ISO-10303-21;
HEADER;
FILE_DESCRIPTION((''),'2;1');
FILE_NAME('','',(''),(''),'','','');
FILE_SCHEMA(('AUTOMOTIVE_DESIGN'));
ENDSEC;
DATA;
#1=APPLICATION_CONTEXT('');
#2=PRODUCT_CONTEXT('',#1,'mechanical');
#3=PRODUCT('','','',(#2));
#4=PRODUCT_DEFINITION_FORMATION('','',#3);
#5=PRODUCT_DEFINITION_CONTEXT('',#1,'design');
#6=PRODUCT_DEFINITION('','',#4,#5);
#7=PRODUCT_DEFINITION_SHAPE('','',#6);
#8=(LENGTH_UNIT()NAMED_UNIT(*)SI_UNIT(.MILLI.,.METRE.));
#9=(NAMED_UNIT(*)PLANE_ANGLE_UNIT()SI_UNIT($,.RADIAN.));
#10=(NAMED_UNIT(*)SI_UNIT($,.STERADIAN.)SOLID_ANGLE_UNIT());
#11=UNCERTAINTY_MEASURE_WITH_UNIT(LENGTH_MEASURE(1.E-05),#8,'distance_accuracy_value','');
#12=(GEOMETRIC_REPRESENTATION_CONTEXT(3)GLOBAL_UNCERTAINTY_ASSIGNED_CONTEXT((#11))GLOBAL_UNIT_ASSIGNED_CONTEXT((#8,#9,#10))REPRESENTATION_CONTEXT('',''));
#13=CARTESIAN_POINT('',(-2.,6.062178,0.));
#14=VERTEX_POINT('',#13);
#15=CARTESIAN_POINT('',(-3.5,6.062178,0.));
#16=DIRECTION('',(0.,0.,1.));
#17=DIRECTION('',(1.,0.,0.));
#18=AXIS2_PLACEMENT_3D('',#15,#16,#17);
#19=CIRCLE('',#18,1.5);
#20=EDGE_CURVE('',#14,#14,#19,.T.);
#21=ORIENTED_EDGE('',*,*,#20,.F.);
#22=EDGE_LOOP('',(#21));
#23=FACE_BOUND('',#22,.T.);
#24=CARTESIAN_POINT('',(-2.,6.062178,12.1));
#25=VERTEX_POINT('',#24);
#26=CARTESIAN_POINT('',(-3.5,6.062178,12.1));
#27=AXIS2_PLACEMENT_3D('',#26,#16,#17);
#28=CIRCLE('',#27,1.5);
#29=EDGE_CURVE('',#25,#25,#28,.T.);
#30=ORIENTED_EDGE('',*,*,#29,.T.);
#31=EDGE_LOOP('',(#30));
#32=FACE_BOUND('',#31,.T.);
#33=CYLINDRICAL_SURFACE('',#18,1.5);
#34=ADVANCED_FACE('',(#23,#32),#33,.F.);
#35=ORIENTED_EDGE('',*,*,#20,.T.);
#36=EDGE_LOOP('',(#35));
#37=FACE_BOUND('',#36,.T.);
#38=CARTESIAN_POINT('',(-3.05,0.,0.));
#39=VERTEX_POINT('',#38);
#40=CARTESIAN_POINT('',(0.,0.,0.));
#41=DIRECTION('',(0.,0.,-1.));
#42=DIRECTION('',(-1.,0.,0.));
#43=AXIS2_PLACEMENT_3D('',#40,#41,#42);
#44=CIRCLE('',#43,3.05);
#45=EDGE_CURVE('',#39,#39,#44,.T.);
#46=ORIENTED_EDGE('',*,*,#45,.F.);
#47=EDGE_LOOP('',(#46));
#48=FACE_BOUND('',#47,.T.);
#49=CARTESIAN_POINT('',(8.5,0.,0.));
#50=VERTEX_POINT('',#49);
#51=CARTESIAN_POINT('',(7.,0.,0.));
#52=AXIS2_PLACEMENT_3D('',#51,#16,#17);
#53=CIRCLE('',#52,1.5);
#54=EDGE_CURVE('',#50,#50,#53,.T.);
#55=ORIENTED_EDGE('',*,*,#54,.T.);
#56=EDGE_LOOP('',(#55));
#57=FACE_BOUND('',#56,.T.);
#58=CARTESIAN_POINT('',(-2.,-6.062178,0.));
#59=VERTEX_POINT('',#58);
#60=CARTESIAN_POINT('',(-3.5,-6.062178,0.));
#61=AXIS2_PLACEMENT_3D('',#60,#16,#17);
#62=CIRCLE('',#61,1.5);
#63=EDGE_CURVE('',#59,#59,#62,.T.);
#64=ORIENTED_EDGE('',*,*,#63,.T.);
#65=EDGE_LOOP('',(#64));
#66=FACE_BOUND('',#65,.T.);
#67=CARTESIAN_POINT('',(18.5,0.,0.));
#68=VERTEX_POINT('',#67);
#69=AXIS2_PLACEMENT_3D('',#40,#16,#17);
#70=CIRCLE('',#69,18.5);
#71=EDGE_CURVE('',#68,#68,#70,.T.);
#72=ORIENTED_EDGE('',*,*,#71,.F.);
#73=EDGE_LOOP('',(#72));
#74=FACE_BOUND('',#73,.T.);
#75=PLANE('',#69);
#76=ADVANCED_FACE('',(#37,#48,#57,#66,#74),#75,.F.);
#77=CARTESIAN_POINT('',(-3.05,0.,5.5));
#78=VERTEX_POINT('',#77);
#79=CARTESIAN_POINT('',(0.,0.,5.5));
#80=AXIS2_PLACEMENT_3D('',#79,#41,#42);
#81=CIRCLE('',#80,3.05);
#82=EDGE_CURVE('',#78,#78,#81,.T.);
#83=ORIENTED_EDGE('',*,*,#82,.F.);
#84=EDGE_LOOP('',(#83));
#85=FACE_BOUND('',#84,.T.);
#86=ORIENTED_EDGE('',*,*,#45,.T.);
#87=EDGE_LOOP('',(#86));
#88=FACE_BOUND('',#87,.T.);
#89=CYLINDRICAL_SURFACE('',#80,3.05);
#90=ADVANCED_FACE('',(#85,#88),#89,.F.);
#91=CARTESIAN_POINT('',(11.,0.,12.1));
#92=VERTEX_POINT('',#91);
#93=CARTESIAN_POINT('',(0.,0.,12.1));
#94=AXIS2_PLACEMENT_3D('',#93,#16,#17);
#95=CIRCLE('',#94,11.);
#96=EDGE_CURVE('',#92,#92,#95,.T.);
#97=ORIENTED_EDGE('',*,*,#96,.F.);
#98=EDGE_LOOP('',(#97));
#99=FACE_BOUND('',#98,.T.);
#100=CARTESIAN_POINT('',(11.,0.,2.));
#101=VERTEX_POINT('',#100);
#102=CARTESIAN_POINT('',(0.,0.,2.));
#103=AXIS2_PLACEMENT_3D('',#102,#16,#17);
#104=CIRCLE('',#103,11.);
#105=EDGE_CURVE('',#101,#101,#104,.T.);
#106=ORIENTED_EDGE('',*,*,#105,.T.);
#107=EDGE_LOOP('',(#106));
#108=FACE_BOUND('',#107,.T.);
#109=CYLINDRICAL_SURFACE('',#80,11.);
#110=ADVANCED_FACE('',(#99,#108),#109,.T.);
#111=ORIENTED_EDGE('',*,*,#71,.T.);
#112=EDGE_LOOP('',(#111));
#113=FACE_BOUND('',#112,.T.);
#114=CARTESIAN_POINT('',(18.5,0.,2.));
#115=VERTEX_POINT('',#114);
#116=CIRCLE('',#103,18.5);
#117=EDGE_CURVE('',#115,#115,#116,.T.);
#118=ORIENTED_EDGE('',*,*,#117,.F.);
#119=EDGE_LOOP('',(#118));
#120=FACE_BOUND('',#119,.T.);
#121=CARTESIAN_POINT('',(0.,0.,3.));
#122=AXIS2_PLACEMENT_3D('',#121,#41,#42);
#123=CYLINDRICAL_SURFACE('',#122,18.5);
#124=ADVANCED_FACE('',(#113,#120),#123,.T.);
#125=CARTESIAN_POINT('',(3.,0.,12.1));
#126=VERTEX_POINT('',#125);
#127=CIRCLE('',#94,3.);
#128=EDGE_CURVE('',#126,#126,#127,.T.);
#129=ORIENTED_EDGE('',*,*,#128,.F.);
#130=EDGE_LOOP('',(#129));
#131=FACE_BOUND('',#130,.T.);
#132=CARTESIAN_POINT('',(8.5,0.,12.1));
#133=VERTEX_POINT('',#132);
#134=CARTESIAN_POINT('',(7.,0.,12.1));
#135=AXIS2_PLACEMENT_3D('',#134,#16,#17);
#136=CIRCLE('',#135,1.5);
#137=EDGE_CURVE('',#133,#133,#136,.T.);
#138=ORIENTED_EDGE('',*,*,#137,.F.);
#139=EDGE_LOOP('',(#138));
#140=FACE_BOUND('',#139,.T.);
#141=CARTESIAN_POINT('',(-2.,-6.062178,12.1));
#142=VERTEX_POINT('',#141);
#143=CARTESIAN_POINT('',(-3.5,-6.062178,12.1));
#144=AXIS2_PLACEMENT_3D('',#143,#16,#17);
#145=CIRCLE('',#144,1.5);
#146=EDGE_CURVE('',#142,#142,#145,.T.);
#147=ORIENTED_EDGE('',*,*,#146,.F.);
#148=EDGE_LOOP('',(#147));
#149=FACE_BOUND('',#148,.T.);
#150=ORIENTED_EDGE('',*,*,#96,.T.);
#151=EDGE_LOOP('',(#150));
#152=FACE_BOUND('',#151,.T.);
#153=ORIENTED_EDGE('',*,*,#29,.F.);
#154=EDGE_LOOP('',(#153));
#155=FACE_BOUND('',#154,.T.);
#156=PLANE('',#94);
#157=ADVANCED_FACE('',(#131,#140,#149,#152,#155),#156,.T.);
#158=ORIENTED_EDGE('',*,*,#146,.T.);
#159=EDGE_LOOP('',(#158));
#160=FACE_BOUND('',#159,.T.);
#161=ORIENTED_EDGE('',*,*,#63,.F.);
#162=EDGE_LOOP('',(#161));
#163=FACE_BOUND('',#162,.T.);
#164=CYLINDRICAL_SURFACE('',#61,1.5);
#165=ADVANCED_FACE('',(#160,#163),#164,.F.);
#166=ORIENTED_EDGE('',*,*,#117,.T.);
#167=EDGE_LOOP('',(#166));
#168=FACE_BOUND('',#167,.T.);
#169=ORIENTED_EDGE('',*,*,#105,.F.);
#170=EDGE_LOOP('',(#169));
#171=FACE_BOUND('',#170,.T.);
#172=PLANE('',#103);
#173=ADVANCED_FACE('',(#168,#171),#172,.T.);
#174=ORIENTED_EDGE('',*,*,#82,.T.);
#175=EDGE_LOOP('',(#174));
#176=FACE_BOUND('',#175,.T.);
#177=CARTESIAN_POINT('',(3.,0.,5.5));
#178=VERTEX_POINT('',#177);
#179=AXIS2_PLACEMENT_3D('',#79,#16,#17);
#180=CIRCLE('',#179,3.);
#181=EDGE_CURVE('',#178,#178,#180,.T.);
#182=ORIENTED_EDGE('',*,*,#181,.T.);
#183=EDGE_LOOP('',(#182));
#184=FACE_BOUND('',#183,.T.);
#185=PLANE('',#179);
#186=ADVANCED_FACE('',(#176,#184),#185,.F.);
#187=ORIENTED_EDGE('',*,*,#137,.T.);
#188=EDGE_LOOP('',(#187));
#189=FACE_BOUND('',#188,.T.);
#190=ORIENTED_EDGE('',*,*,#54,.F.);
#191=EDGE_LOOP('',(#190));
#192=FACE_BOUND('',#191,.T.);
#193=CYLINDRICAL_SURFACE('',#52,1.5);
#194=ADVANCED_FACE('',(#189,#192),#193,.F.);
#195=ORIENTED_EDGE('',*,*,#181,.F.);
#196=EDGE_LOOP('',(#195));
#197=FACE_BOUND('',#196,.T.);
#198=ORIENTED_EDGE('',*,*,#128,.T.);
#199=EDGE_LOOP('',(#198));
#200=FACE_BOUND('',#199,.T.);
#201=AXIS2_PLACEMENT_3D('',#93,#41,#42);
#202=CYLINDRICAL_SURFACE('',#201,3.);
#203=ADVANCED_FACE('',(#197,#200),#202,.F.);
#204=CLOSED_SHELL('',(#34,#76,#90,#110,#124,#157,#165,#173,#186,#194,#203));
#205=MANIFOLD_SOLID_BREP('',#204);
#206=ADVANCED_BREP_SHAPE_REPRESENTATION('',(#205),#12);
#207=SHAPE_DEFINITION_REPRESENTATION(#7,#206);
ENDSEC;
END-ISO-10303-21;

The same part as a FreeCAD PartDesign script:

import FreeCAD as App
import Part
import Sketcher

doc = App.newDocument("Part")
params = doc.addObject("Spreadsheet::Sheet", "Params")
for row, (alias, value) in enumerate([
    ("sketch1_diameter", "37 mm"),
    ("pad1_length", "3 mm"),
    ("sketch2_diameter", "22 mm"),
    ("pad2_length", "2.5 mm"),
    ("sketch3_diameter", "6.1 mm"),
    ("sketch4_diameter", "22 mm"),
    ("sketch4_diameter2", "6 mm"),
    ("pad3_length", "6.6 mm"),
    ("sketch5_diameter", "3 mm"),
    ("sketch6_diameter", "37 mm"),
    ("sketch6_diameter2", "22 mm"),
    ("pocket3_length", "1 mm"),
], start=1):
    params.set(f"A{row}", alias)
    params.set(f"B{row}", "=" + value)
    params.setAlias(f"B{row}", alias)

body = doc.addObject("PartDesign::Body", "Body")

sketch1 = body.newObject("Sketcher::SketchObject", "Sketch")
sketch1.AttachmentSupport = (doc.getObject("XY_Plane"), [""])
sketch1.MapMode = "FlatFace"
sketch1.addGeometry(Part.Circle(App.Vector(0, 0, 0), App.Vector(0, 0, 1), 18), False)
sketch1.addConstraint(Sketcher.Constraint("Coincident", 0, 3, -1, 1))
sketch1.addConstraint(Sketcher.Constraint("Diameter", 0, 37.0))
sketch1.setExpression("Constraints[1]", "Params.sketch1_diameter")
pad1 = body.newObject("PartDesign::Pad", "Pad")
pad1.Profile = sketch1
pad1.setExpression("Length", "Params.pad1_length")

sketch2 = body.newObject("Sketcher::SketchObject", "Sketch001")
sketch2.AttachmentSupport = (doc.getObject("XY_Plane"), [""])
sketch2.MapMode = "FlatFace"
sketch2.AttachmentOffset = App.Placement(App.Vector(0, 0, 3), App.Rotation())
sketch2.addGeometry(Part.Circle(App.Vector(0, 0, 0), App.Vector(0, 0, 1), 11), False)
sketch2.addConstraint(Sketcher.Constraint("Coincident", 0, 3, -1, 1))
sketch2.addConstraint(Sketcher.Constraint("Diameter", 0, 22.0))
sketch2.setExpression("Constraints[1]", "Params.sketch2_diameter")
pad2 = body.newObject("PartDesign::Pad", "Pad001")
pad2.Profile = sketch2
pad2.setExpression("Length", "Params.pad2_length")

sketch3 = body.newObject("Sketcher::SketchObject", "Sketch002")
sketch3.AttachmentSupport = (doc.getObject("XY_Plane"), [""])
sketch3.MapMode = "FlatFace"
sketch3.addGeometry(Part.Circle(App.Vector(0, 0, 0), App.Vector(0, 0, 1), 3), False)
sketch3.addConstraint(Sketcher.Constraint("Coincident", 0, 3, -1, 1))
sketch3.addConstraint(Sketcher.Constraint("Diameter", 0, 6.1))
sketch3.setExpression("Constraints[1]", "Params.sketch3_diameter")
pocket1 = body.newObject("PartDesign::Pocket", "Pocket")
pocket1.Profile = sketch3
pocket1.Type = "ThroughAll"
pocket1.Reversed = True

sketch4 = body.newObject("Sketcher::SketchObject", "Sketch003")
sketch4.AttachmentSupport = (doc.getObject("XY_Plane"), [""])
sketch4.MapMode = "FlatFace"
sketch4.AttachmentOffset = App.Placement(App.Vector(0, 0, 5.5), App.Rotation())
sketch4.addGeometry(Part.Circle(App.Vector(0, 0, 0), App.Vector(0, 0, 1), 11), False)
sketch4.addGeometry(Part.Circle(App.Vector(0, 0, 0), App.Vector(0, 0, 1), 3), False)
sketch4.addConstraint(Sketcher.Constraint("Coincident", 0, 3, -1, 1))
sketch4.addConstraint(Sketcher.Constraint("Coincident", 1, 3, -1, 1))
sketch4.addConstraint(Sketcher.Constraint("Diameter", 0, 22.0))
sketch4.addConstraint(Sketcher.Constraint("Diameter", 1, 6.0))
sketch4.setExpression("Constraints[2]", "Params.sketch4_diameter")
sketch4.setExpression("Constraints[3]", "Params.sketch4_diameter2")
pad3 = body.newObject("PartDesign::Pad", "Pad002")
pad3.Profile = sketch4
pad3.setExpression("Length", "Params.pad3_length")

sketch5 = body.newObject("Sketcher::SketchObject", "Sketch004")
sketch5.AttachmentSupport = (doc.getObject("XY_Plane"), [""])
sketch5.MapMode = "FlatFace"
sketch5.AttachmentOffset = App.Placement(App.Vector(0, 0, 12.1), App.Rotation())
sketch5.addGeometry(Part.Circle(App.Vector(7, 0, 0), App.Vector(0, 0, 1), 1.5), False)
sketch5.addGeometry(Part.Circle(App.Vector(-3.5, -6.1, 0), App.Vector(0, 0, 1), 1.5), False)
sketch5.addGeometry(Part.Circle(App.Vector(-3.5, 6.1, 0), App.Vector(0, 0, 1), 1.5), False)
sketch5.addConstraint(Sketcher.Constraint("Equal", 0, 1))
sketch5.addConstraint(Sketcher.Constraint("Equal", 1, 2))
sketch5.addConstraint(Sketcher.Constraint("Symmetric", 1, 3, 2, 3, -1))
sketch5.addConstraint(Sketcher.Constraint("PointOnObject", 0, 3, -1))
sketch5.addConstraint(Sketcher.Constraint("Diameter", 0, 3.0))
sketch5.addConstraint(Sketcher.Constraint("DistanceX", -1, 1, 0, 3, 7.0))
sketch5.addConstraint(Sketcher.Constraint("DistanceX", 1, 3, -1, 1, 3.5))
sketch5.addConstraint(Sketcher.Constraint("DistanceY", 1, 3, -1, 1, 6.062178))
sketch5.setExpression("Constraints[4]", "Params.sketch5_diameter")
pocket2 = body.newObject("PartDesign::Pocket", "Pocket001")
pocket2.Profile = sketch5
pocket2.Type = "ThroughAll"

sketch6 = body.newObject("Sketcher::SketchObject", "Sketch005")
sketch6.AttachmentSupport = (doc.getObject("XY_Plane"), [""])
sketch6.MapMode = "FlatFace"
sketch6.AttachmentOffset = App.Placement(App.Vector(0, 0, 2), App.Rotation())
sketch6.addGeometry(Part.Circle(App.Vector(0, 0, 0), App.Vector(0, 0, 1), 18), False)
sketch6.addGeometry(Part.Circle(App.Vector(0, 0, 0), App.Vector(0, 0, 1), 11), False)
sketch6.addConstraint(Sketcher.Constraint("Coincident", 0, 3, -1, 1))
sketch6.addConstraint(Sketcher.Constraint("Coincident", 1, 3, -1, 1))
sketch6.addConstraint(Sketcher.Constraint("Diameter", 0, 37.0))
sketch6.addConstraint(Sketcher.Constraint("Diameter", 1, 22.0))
sketch6.setExpression("Constraints[2]", "Params.sketch6_diameter")
sketch6.setExpression("Constraints[3]", "Params.sketch6_diameter2")
pocket3 = body.newObject("PartDesign::Pocket", "Pocket002")
pocket3.Profile = sketch6
pocket3.setExpression("Length", "Params.pocket3_length")
pocket3.Reversed = True

doc.recompute()
